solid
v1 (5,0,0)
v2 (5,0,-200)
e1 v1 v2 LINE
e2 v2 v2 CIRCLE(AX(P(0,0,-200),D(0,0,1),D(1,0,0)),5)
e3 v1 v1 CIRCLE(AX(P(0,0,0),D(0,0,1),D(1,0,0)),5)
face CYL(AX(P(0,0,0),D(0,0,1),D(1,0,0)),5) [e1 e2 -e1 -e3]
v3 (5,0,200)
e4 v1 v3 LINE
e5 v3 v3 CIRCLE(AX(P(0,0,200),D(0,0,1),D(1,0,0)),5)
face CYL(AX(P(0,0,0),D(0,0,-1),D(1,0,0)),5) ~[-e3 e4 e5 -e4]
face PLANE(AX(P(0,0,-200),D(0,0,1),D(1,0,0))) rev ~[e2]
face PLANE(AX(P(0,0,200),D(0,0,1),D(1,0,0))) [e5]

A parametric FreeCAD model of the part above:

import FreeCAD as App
import Part
import Sketcher

doc = App.newDocument("Part")
body = doc.addObject("PartDesign::Body", "Body")

# Sketch on XY plane
sketch1 = doc.addObject("Sketcher::SketchObject", "Sketch")
body.addObject(sketch1)
sketch1.AttachmentSupport = (doc.XY_Plane, [""])
sketch1.MapMode = "FlatFace"
sketch1.addGeometry(Part.Circle(App.Vector(0, 0, 0), App.Vector(0, 0, 1), 5), False)
sketch1.addConstraint([
    Sketcher.Constraint("Coincident", 0, 3, -1, 1),
    Sketcher.Constraint("Diameter", 0, 10.0),
])
pad1 = doc.addObject("PartDesign::Pad", "Pad")
body.addObject(pad1)
pad1.Profile = sketch1
pad1.Type = "TwoLengths"
pad1.Length = 200
pad1.Length2 = 200
pad1.Reversed = True

doc.recompute()
